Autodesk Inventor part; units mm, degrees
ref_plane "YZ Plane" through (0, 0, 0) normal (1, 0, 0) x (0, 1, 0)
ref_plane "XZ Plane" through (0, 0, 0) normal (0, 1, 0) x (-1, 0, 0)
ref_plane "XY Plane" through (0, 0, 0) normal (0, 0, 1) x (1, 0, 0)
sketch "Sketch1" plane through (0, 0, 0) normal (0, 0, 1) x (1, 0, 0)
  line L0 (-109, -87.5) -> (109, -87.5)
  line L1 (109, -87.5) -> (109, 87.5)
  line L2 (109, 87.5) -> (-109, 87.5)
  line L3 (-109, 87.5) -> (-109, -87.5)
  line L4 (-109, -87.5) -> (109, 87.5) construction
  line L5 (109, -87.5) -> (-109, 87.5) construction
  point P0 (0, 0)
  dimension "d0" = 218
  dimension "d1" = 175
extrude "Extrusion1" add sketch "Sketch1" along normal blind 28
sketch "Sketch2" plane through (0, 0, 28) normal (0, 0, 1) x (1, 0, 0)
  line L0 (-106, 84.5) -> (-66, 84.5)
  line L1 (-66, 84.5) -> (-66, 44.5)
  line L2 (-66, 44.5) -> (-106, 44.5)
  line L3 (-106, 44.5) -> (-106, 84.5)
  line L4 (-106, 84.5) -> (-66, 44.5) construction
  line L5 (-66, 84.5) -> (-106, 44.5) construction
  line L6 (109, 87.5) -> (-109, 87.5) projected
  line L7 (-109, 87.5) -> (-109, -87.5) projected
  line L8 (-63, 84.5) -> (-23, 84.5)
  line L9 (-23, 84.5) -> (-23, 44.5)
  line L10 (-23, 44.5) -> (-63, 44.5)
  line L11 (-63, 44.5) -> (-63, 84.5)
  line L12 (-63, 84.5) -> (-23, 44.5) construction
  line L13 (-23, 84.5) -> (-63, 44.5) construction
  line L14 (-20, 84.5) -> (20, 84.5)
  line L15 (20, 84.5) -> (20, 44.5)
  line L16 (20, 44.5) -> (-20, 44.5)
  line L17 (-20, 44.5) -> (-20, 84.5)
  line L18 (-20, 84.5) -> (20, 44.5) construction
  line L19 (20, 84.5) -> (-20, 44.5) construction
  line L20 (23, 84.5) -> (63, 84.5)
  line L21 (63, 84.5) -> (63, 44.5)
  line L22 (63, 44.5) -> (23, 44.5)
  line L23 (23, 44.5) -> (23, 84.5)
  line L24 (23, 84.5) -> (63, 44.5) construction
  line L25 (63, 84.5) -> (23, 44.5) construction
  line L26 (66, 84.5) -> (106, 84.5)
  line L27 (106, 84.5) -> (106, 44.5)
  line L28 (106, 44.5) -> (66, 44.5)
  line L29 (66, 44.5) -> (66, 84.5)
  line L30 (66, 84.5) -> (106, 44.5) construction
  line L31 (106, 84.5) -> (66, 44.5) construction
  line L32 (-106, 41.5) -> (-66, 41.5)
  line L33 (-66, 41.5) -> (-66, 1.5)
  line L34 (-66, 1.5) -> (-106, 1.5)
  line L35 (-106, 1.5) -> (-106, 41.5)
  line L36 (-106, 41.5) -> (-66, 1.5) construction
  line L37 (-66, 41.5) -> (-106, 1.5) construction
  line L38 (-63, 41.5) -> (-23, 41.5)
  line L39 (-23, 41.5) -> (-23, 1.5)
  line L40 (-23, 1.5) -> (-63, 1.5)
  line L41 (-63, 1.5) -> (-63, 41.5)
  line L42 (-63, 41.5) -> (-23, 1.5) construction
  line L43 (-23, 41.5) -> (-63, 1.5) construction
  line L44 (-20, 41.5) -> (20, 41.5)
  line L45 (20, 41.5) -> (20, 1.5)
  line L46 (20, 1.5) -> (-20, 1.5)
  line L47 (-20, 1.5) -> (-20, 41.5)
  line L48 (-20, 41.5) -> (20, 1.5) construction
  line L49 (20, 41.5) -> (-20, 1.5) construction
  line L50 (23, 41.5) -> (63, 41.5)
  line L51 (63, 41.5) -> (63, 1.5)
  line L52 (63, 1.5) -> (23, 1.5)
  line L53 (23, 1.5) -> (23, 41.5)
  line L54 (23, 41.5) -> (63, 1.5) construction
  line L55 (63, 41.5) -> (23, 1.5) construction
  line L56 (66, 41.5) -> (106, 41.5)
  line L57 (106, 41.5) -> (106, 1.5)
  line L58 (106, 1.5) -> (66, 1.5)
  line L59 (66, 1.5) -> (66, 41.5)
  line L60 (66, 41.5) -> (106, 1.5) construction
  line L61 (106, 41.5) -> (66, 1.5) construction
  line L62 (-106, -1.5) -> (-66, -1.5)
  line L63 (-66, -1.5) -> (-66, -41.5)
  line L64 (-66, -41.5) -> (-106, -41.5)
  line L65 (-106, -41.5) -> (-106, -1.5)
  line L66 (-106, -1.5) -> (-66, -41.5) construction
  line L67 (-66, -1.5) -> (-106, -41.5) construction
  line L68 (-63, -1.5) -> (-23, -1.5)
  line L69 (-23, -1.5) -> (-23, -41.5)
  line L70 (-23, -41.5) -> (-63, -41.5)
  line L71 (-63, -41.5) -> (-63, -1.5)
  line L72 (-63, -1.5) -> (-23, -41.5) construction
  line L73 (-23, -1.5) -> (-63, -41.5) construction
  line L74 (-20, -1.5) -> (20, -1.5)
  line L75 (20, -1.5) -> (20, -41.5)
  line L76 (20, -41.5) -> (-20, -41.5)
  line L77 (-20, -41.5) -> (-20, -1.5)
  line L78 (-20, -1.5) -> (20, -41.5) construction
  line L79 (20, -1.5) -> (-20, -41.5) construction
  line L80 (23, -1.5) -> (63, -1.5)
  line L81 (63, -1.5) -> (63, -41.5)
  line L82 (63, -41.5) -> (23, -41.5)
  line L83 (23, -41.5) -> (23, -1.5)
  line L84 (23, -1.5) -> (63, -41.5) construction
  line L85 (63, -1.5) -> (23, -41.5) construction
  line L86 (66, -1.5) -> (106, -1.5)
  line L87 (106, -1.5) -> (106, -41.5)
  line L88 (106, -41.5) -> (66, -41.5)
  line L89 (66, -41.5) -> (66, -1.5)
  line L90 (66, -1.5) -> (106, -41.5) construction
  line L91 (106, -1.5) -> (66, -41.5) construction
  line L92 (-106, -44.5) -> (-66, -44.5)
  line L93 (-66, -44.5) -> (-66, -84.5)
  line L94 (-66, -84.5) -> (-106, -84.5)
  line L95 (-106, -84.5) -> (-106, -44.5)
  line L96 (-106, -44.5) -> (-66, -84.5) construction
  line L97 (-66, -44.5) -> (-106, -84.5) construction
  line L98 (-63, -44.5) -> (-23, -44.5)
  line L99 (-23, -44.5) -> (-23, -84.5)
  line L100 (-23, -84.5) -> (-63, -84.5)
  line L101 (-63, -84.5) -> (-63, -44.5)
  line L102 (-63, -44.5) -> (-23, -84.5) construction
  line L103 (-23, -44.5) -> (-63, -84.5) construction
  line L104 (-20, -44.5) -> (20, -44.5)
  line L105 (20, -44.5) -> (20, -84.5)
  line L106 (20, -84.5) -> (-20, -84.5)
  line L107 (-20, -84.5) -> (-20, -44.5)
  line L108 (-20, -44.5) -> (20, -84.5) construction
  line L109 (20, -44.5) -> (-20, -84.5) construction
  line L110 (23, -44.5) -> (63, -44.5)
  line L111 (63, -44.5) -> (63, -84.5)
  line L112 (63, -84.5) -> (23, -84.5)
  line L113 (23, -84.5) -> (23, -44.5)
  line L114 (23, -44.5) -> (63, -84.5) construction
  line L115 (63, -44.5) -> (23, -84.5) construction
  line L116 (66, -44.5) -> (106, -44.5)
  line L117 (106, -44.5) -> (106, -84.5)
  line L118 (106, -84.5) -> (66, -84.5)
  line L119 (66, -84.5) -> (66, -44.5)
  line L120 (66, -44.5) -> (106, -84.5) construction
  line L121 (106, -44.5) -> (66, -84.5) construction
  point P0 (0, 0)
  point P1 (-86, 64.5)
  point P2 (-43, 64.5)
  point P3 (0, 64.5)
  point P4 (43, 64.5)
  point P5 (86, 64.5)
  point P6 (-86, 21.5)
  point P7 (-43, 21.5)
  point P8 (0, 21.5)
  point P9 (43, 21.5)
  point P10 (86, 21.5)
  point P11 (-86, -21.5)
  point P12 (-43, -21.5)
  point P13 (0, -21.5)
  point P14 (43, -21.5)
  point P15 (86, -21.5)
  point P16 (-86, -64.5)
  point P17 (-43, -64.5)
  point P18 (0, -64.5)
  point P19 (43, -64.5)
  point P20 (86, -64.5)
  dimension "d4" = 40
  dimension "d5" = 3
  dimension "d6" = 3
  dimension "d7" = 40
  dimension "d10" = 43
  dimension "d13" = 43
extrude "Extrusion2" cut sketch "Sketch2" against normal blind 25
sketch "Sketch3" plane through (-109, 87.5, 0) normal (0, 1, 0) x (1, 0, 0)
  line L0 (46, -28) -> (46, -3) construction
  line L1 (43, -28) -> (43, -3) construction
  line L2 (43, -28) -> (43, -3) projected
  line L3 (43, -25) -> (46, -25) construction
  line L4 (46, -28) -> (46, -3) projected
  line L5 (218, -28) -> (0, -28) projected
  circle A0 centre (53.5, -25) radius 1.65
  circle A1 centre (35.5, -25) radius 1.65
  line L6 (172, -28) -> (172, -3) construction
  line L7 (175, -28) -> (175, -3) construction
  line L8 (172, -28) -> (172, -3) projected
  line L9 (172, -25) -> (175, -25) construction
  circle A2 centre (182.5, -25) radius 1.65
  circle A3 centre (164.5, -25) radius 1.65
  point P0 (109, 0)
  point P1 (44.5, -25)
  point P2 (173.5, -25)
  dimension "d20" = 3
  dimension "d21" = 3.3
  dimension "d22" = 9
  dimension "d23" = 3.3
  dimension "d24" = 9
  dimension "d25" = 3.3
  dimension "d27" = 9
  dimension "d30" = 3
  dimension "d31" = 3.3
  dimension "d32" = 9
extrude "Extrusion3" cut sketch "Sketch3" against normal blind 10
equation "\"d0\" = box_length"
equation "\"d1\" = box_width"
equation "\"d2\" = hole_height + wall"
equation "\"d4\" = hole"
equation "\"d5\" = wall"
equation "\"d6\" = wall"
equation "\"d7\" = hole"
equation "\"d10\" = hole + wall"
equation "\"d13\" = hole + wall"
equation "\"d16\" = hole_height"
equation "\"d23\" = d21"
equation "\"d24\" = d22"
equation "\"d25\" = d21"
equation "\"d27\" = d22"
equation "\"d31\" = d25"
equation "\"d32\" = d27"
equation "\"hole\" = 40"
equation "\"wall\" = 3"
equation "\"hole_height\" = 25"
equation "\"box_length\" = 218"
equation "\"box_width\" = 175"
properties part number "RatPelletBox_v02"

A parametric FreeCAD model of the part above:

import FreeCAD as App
import Part
import Sketcher

V = App.Vector
Q = App.Units.Quantity


def add_polygon(sketch, points):
    """Adds a closed chain of lines whose ends are joined by coincident constraints."""
    first, n = sketch.GeometryCount, len(points)
    for a, b in zip(points, points[1:] + points[:1]):
        sketch.addGeometry(Part.LineSegment(App.Vector(*a, 0), App.Vector(*b, 0)), False)
    for i in range(n):
        sketch.addConstraint(Sketcher.Constraint("Coincident", first + i, 2, first + (i + 1) % n, 1))

doc = App.newDocument("Part")
params = doc.addObject("Spreadsheet::Sheet", "Params")
for row, (alias, value) in enumerate([
    ("sketch1_width", "218 mm"),
    ("sketch1_height", "175 mm"),
    ("pad1_length", "28 mm"),
    ("sketch2_width", "40 mm"),
    ("pocket1_length", "25 mm"),
    ("sketch3_diameter", "3.3 mm"),
    ("pocket2_length", "10 mm"),
], start=1):
    params.set(f"A{row}", alias)
    params.set(f"B{row}", "=" + value)
    params.setAlias(f"B{row}", alias)

body = doc.addObject("PartDesign::Body", "Body")

sketch1 = body.newObject("Sketcher::SketchObject", "Sketch")
sketch1.AttachmentSupport = (doc.getObject("XY_Plane"), [""])
sketch1.MapMode = "FlatFace"
add_polygon(sketch1, [(-109, 88), (-109, -88), (109, -88), (109, 88)])
sketch1.addConstraint(Sketcher.Constraint("Vertical", 0))
sketch1.addConstraint(Sketcher.Constraint("Horizontal", 1))
sketch1.addConstraint(Sketcher.Constraint("Vertical", 2))
sketch1.addConstraint(Sketcher.Constraint("Horizontal", 3))
sketch1.addConstraint(Sketcher.Constraint("Symmetric", 0, 2, 2, 2, -1, 1))
sketch1.addConstraint(Sketcher.Constraint("DistanceX", 1, 1, 1, 2, Q("218 mm")))
sketch1.addConstraint(Sketcher.Constraint("DistanceY", 0, 2, 0, 1, Q("175 mm")))
sketch1.setExpression("Constraints[9]", "Params.sketch1_width")
sketch1.setExpression("Constraints[10]", "Params.sketch1_height")
pad1 = body.newObject("PartDesign::Pad", "Pad")
pad1.Profile = sketch1
pad1.setExpression("Length", "Params.pad1_length")

sketch2 = body.newObject("Sketcher::SketchObject", "Sketch001")
sketch2.AttachmentSupport = (doc.getObject("XY_Plane"), [""])
sketch2.MapMode = "FlatFace"
sketch2.AttachmentOffset = App.Placement(V(0, 0, 28), App.Rotation())
add_polygon(sketch2, [(-66, 84), (-106, 84), (-106, 44), (-66, 44)])
add_polygon(sketch2, [(-23, 84), (-63, 84), (-63, 44), (-23, 44)])
add_polygon(sketch2, [(20, 84), (-20, 84), (-20, 44), (20, 44)])
add_polygon(sketch2, [(63, 84), (23, 84), (23, 44), (63, 44)])
add_polygon(sketch2, [(106, 84), (66, 84), (66, 44), (106, 44)])
add_polygon(sketch2, [(-66, 42), (-106, 42), (-106, 2), (-66, 2)])
add_polygon(sketch2, [(-23, 42), (-63, 42), (-63, 2), (-23, 2)])
add_polygon(sketch2, [(20, 42), (-20, 42), (-20, 2), (20, 2)])
add_polygon(sketch2, [(63, 42), (23, 42), (23, 2), (63, 2)])
add_polygon(sketch2, [(106, 42), (66, 42), (66, 2), (106, 2)])
add_polygon(sketch2, [(-66, -2), (-106, -2), (-106, -42), (-66, -42)])
add_polygon(sketch2, [(-23, -2), (-63, -2), (-63, -42), (-23, -42)])
add_polygon(sketch2, [(20, -2), (-20, -2), (-20, -42), (20, -42)])
add_polygon(sketch2, [(63, -2), (23, -2), (23, -42), (63, -42)])
add_polygon(sketch2, [(106, -2), (66, -2), (66, -42), (106, -42)])
add_polygon(sketch2, [(-66, -44), (-106, -44), (-106, -84), (-66, -84)])
add_polygon(sketch2, [(-23, -44), (-63, -44), (-63, -84), (-23, -84)])
add_polygon(sketch2, [(20, -44), (-20, -44), (-20, -84), (20, -84)])
add_polygon(sketch2, [(63, -44), (23, -44), (23, -84), (63, -84)])
add_polygon(sketch2, [(106, -44), (66, -44), (66, -84), (106, -84)])
sketch2.addConstraint(Sketcher.Constraint("Horizontal", 0))
sketch2.addConstraint(Sketcher.Constraint("Vertical", 1))
sketch2.addConstraint(Sketcher.Constraint("Horizontal", 2))
sketch2.addConstraint(Sketcher.Constraint("Vertical", 3))
sketch2.addConstraint(Sketcher.Constraint("Horizontal", 4))
sketch2.addConstraint(Sketcher.Constraint("Vertical", 5))
sketch2.addConstraint(Sketcher.Constraint("Horizontal", 6))
sketch2.addConstraint(Sketcher.Constraint("Vertical", 7))
sketch2.addConstraint(Sketcher.Constraint("Horizontal", 8))
sketch2.addConstraint(Sketcher.Constraint("Vertical", 9))
sketch2.addConstraint(Sketcher.Constraint("Horizontal", 10))
sketch2.addConstraint(Sketcher.Constraint("Vertical", 11))
sketch2.addConstraint(Sketcher.Constraint("Horizontal", 12))
sketch2.addConstraint(Sketcher.Constraint("Vertical", 13))
sketch2.addConstraint(Sketcher.Constraint("Horizontal", 14))
sketch2.addConstraint(Sketcher.Constraint("Vertical", 15))
sketch2.addConstraint(Sketcher.Constraint("Horizontal", 16))
sketch2.addConstraint(Sketcher.Constraint("Vertical", 17))
sketch2.addConstraint(Sketcher.Constraint("Horizontal", 18))
sketch2.addConstraint(Sketcher.Constraint("Vertical", 19))
sketch2.addConstraint(Sketcher.Constraint("Horizontal", 20))
sketch2.addConstraint(Sketcher.Constraint("Vertical", 21))
sketch2.addConstraint(Sketcher.Constraint("Horizontal", 22))
sketch2.addConstraint(Sketcher.Constraint("Vertical", 23))
sketch2.addConstraint(Sketcher.Constraint("Horizontal", 24))
sketch2.addConstraint(Sketcher.Constraint("Vertical", 25))
sketch2.addConstraint(Sketcher.Constraint("Horizontal", 26))
sketch2.addConstraint(Sketcher.Constraint("Vertical", 27))
sketch2.addConstraint(Sketcher.Constraint("Horizontal", 28))
sketch2.addConstraint(Sketcher.Constraint("Vertical", 29))
sketch2.addConstraint(Sketcher.Constraint("Horizontal", 30))
sketch2.addConstraint(Sketcher.Constraint("Vertical", 31))
sketch2.addConstraint(Sketcher.Constraint("Horizontal", 32))
sketch2.addConstraint(Sketcher.Constraint("Vertical", 33))
sketch2.addConstraint(Sketcher.Constraint("Horizontal", 34))
sketch2.addConstraint(Sketcher.Constraint("Vertical", 35))
sketch2.addConstraint(Sketcher.Constraint("Horizontal", 36))
sketch2.addConstraint(Sketcher.Constraint("Vertical", 37))
sketch2.addConstraint(Sketcher.Constraint("Horizontal", 38))
sketch2.addConstraint(Sketcher.Constraint("Vertical", 39))
sketch2.addConstraint(Sketcher.Constraint("Horizontal", 40))
sketch2.addConstraint(Sketcher.Constraint("Vertical", 41))
sketch2.addConstraint(Sketcher.Constraint("Horizontal", 42))
sketch2.addConstraint(Sketcher.Constraint("Vertical", 43))
sketch2.addConstraint(Sketcher.Constraint("Horizontal", 44))
sketch2.addConstraint(Sketcher.Constraint("Vertical", 45))
sketch2.addConstraint(Sketcher.Constraint("Horizontal", 46))
sketch2.addConstraint(Sketcher.Constraint("Vertical", 47))
sketch2.addConstraint(Sketcher.Constraint("Horizontal", 48))
sketch2.addConstraint(Sketcher.Constraint("Vertical", 49))
sketch2.addConstraint(Sketcher.Constraint("Horizontal", 50))
sketch2.addConstraint(Sketcher.Constraint("Vertical", 51))
sketch2.addConstraint(Sketcher.Constraint("Horizontal", 52))
sketch2.addConstraint(Sketcher.Constraint("Vertical", 53))
sketch2.addConstraint(Sketcher.Constraint("Horizontal", 54))
sketch2.addConstraint(Sketcher.Constraint("Vertical", 55))
sketch2.addConstraint(Sketcher.Constraint("Horizontal", 56))
sketch2.addConstraint(Sketcher.Constraint("Vertical", 57))
sketch2.addConstraint(Sketcher.Constraint("Horizontal", 58))
sketch2.addConstraint(Sketcher.Constraint("Vertical", 59))
sketch2.addConstraint(Sketcher.Constraint("Horizontal", 60))
sketch2.addConstraint(Sketcher.Constraint("Vertical", 61))
sketch2.addConstraint(Sketcher.Constraint("Horizontal", 62))
sketch2.addConstraint(Sketcher.Constraint("Vertical", 63))
sketch2.addConstraint(Sketcher.Constraint("Horizontal", 64))
sketch2.addConstraint(Sketcher.Constraint("Vertical", 65))
sketch2.addConstraint(Sketcher.Constraint("Horizontal", 66))
sketch2.addConstraint(Sketcher.Constraint("Vertical", 67))
sketch2.addConstraint(Sketcher.Constraint("Horizontal", 68))
sketch2.addConstraint(Sketcher.Constraint("Vertical", 69))
sketch2.addConstraint(Sketcher.Constraint("Horizontal", 70))
sketch2.addConstraint(Sketcher.Constraint("Vertical", 71))
sketch2.addConstraint(Sketcher.Constraint("Horizontal", 72))
sketch2.addConstraint(Sketcher.Constraint("Vertical", 73))
sketch2.addConstraint(Sketcher.Constraint("Horizontal", 74))
sketch2.addConstraint(Sketcher.Constraint("Vertical", 75))
sketch2.addConstraint(Sketcher.Constraint("Horizontal", 76))
sketch2.addConstraint(Sketcher.Constraint("Vertical", 77))
sketch2.addConstraint(Sketcher.Constraint("Horizontal", 78))
sketch2.addConstraint(Sketcher.Constraint("Vertical", 79))
sketch2.addConstraint(Sketcher.Constraint("Symmetric", 38, 2, 40, 2, -1, 1))
sketch2.addConstraint(Sketcher.Constraint("Symmetric", 36, 2, 42, 2, -1, 1))
sketch2.addConstraint(Sketcher.Constraint("Symmetric", 34, 2, 44, 2, -1, 1))
sketch2.addConstraint(Sketcher.Constraint("Symmetric", 32, 2, 46, 2, -1, 1))
sketch2.addConstraint(Sketcher.Constraint("Symmetric", 30, 2, 48, 2, -1, 1))
sketch2.addConstraint(Sketcher.Constraint("Symmetric", 28, 2, 50, 2, -1, 1))
sketch2.addConstraint(Sketcher.Constraint("Symmetric", 26, 2, 52, 2, -1, 1))
sketch2.addConstraint(Sketcher.Constraint("Symmetric", 24, 2, 54, 2, -1, 1))
sketch2.addConstraint(Sketcher.Constraint("Symmetric", 22, 2, 56, 2, -1, 1))
sketch2.addConstraint(Sketcher.Constraint("Symmetric", 20, 2, 58, 2, -1, 1))
sketch2.addConstraint(Sketcher.Constraint("Symmetric", 18, 2, 60, 2, -1, 1))
sketch2.addConstraint(Sketcher.Constraint("Symmetric", 16, 2, 62, 2, -1, 1))
sketch2.addConstraint(Sketcher.Constraint("Symmetric", 14, 2, 64, 2, -1, 1))
sketch2.addConstraint(Sketcher.Constraint("Symmetric", 12, 2, 66, 2, -1, 1))
sketch2.addConstraint(Sketcher.Constraint("Symmetric", 10, 2, 68, 2, -1, 1))
sketch2.addConstraint(Sketcher.Constraint("Symmetric", 8, 2, 70, 2, -1, 1))
sketch2.addConstraint(Sketcher.Constraint("Symmetric", 6, 2, 72, 2, -1, 1))
sketch2.addConstraint(Sketcher.Constraint("Symmetric", 4, 2, 74, 2, -1, 1))
sketch2.addConstraint(Sketcher.Constraint("Symmetric", 2, 2, 76, 2, -1, 1))
sketch2.addConstraint(Sketcher.Constraint("Symmetric", 0, 2, 78, 2, -1, 1))
sketch2.addConstraint(Sketcher.Constraint("Symmetric", 7, 2, 12, 2, -2))
sketch2.addConstraint(Sketcher.Constraint("Symmetric", 5, 2, 14, 2, -2))
sketch2.addConstraint(Sketcher.Constraint("Symmetric", 3, 2, 16, 2, -2))
sketch2.addConstraint(Sketcher.Constraint("Symmetric", 1, 2, 18, 2, -2))
sketch2.addConstraint(Sketcher.Constraint("Symmetric", 27, 2, 32, 2, -2))
sketch2.addConstraint(Sketcher.Constraint("Symmetric", 25, 2, 34, 2, -2))
sketch2.addConstraint(Sketcher.Constraint("Symmetric", 23, 2, 36, 2, -2))
sketch2.addConstraint(Sketcher.Constraint("Symmetric", 21, 2, 38, 2, -2))
sketch2.addConstraint(Sketcher.Constraint("Horizontal", 3, 2, 4, 2))
sketch2.addConstraint(Sketcher.Constraint("Horizontal", 2, 2, 5, 2))
sketch2.addConstraint(Sketcher.Constraint("Horizontal", 7, 2, 8, 2))
sketch2.addConstraint(Sketcher.Constraint("Horizontal", 6, 2, 9, 2))
sketch2.addConstraint(Sketcher.Constraint("Horizontal", 23, 2, 24, 2))
sketch2.addConstraint(Sketcher.Constraint("Horizontal", 22, 2, 25, 2))
sketch2.addConstraint(Sketcher.Constraint("Horizontal", 27, 2, 28, 2))
sketch2.addConstraint(Sketcher.Constraint("Horizontal", 26, 2, 29, 2))
sketch2.addConstraint(Sketcher.Constraint("Vertical", 1, 2, 20, 2))
sketch2.addConstraint(Sketcher.Constraint("Vertical", 3, 2, 22, 2))
sketch2.addConstraint(Sketcher.Constraint("Vertical", 5, 2, 24, 2))
sketch2.addConstraint(Sketcher.Constraint("Vertical", 7, 2, 26, 2))
sketch2.addConstraint(Sketcher.Constraint("Vertical", 9, 2, 28, 2))
sketch2.addConstraint(Sketcher.Constraint("Vertical", 11, 2, 30, 2))
sketch2.addConstraint(Sketcher.Constraint("Vertical", 29, 2, 48, 2))
sketch2.addConstraint(Sketcher.Constraint("Equal", 2, 4))
sketch2.addConstraint(Sketcher.Constraint("Equal", 6, 8))
sketch2.addConstraint(Sketcher.Constraint("Equal", 78, 1))
sketch2.addConstraint(Sketcher.Constraint("Equal", 19, 21))
sketch2.addConstraint(Sketcher.Constraint("DistanceX", 0, 2, 0, 1, Q("40 mm")))
sketch2.addConstraint(Sketcher.Constraint("DistanceX", 0, 2, -1, 1, Q("106 mm")))
sketch2.addConstraint(Sketcher.Constraint("DistanceX", 4, 2, -1, 1, Q("63 mm")))
sketch2.addConstraint(Sketcher.Constraint("DistanceY", -1, 1, 0, 2, Q("84.5 mm")))
sketch2.addConstraint(Sketcher.Constraint("DistanceY", -1, 1, 20, 2, Q("41.5 mm")))
sketch2.setExpression("Constraints[207]", "Params.sketch2_width")
pocket1 = body.newObject("PartDesign::Pocket", "Pocket")
pocket1.Profile = sketch2
pocket1.setExpression("Length", "Params.pocket1_length")

sketch3 = body.newObject("Sketcher::SketchObject", "Sketch002")
sketch3.AttachmentSupport = (doc.getObject("XZ_Plane"), [""])
sketch3.MapMode = "FlatFace"
sketch3.AttachmentOffset = App.Placement(V(0, 0, -87.5), App.Rotation())
sketch3.addGeometry(Part.Circle(V(-55.5, 25, 0), V(0, 0, 1), 1.6), False)
sketch3.addGeometry(Part.Circle(V(-73.5, 25, 0), V(0, 0, 1), 1.6), False)
sketch3.addGeometry(Part.Circle(V(73.5, 25, 0), V(0, 0, 1), 1.6), False)
sketch3.addGeometry(Part.Circle(V(55.5, 25, 0), V(0, 0, 1), 1.6), False)
sketch3.addConstraint(Sketcher.Constraint("Equal", 0, 1))
sketch3.addConstraint(Sketcher.Constraint("Equal", 1, 2))
sketch3.addConstraint(Sketcher.Constraint("Equal", 2, 3))
sketch3.addConstraint(Sketcher.Constraint("Symmetric", 1, 3, 2, 3, -2))
sketch3.addConstraint(Sketcher.Constraint("Symmetric", 0, 3, 3, 3, -2))
sketch3.addConstraint(Sketcher.Constraint("Horizontal", 0, 3, 1, 3))
sketch3.addConstraint(Sketcher.Constraint("Diameter", 0, Q("3.3 mm")))
sketch3.addConstraint(Sketcher.Constraint("DistanceY", -1, 1, 0, 3, Q("25 mm")))
sketch3.addConstraint(Sketcher.Constraint("DistanceX", 1, 3, 0, 3, Q("18 mm")))
sketch3.addConstraint(Sketcher.Constraint("DistanceX", 0, 3, 2, 3, Q("129 mm")))
sketch3.setExpression("Constraints[6]", "Params.sketch3_diameter")
pocket2 = body.newObject("PartDesign::Pocket", "Pocket001")
pocket2.Profile = sketch3
pocket2.setExpression("Length", "Params.pocket2_length")
pocket2.Reversed = True

doc.recompute()
